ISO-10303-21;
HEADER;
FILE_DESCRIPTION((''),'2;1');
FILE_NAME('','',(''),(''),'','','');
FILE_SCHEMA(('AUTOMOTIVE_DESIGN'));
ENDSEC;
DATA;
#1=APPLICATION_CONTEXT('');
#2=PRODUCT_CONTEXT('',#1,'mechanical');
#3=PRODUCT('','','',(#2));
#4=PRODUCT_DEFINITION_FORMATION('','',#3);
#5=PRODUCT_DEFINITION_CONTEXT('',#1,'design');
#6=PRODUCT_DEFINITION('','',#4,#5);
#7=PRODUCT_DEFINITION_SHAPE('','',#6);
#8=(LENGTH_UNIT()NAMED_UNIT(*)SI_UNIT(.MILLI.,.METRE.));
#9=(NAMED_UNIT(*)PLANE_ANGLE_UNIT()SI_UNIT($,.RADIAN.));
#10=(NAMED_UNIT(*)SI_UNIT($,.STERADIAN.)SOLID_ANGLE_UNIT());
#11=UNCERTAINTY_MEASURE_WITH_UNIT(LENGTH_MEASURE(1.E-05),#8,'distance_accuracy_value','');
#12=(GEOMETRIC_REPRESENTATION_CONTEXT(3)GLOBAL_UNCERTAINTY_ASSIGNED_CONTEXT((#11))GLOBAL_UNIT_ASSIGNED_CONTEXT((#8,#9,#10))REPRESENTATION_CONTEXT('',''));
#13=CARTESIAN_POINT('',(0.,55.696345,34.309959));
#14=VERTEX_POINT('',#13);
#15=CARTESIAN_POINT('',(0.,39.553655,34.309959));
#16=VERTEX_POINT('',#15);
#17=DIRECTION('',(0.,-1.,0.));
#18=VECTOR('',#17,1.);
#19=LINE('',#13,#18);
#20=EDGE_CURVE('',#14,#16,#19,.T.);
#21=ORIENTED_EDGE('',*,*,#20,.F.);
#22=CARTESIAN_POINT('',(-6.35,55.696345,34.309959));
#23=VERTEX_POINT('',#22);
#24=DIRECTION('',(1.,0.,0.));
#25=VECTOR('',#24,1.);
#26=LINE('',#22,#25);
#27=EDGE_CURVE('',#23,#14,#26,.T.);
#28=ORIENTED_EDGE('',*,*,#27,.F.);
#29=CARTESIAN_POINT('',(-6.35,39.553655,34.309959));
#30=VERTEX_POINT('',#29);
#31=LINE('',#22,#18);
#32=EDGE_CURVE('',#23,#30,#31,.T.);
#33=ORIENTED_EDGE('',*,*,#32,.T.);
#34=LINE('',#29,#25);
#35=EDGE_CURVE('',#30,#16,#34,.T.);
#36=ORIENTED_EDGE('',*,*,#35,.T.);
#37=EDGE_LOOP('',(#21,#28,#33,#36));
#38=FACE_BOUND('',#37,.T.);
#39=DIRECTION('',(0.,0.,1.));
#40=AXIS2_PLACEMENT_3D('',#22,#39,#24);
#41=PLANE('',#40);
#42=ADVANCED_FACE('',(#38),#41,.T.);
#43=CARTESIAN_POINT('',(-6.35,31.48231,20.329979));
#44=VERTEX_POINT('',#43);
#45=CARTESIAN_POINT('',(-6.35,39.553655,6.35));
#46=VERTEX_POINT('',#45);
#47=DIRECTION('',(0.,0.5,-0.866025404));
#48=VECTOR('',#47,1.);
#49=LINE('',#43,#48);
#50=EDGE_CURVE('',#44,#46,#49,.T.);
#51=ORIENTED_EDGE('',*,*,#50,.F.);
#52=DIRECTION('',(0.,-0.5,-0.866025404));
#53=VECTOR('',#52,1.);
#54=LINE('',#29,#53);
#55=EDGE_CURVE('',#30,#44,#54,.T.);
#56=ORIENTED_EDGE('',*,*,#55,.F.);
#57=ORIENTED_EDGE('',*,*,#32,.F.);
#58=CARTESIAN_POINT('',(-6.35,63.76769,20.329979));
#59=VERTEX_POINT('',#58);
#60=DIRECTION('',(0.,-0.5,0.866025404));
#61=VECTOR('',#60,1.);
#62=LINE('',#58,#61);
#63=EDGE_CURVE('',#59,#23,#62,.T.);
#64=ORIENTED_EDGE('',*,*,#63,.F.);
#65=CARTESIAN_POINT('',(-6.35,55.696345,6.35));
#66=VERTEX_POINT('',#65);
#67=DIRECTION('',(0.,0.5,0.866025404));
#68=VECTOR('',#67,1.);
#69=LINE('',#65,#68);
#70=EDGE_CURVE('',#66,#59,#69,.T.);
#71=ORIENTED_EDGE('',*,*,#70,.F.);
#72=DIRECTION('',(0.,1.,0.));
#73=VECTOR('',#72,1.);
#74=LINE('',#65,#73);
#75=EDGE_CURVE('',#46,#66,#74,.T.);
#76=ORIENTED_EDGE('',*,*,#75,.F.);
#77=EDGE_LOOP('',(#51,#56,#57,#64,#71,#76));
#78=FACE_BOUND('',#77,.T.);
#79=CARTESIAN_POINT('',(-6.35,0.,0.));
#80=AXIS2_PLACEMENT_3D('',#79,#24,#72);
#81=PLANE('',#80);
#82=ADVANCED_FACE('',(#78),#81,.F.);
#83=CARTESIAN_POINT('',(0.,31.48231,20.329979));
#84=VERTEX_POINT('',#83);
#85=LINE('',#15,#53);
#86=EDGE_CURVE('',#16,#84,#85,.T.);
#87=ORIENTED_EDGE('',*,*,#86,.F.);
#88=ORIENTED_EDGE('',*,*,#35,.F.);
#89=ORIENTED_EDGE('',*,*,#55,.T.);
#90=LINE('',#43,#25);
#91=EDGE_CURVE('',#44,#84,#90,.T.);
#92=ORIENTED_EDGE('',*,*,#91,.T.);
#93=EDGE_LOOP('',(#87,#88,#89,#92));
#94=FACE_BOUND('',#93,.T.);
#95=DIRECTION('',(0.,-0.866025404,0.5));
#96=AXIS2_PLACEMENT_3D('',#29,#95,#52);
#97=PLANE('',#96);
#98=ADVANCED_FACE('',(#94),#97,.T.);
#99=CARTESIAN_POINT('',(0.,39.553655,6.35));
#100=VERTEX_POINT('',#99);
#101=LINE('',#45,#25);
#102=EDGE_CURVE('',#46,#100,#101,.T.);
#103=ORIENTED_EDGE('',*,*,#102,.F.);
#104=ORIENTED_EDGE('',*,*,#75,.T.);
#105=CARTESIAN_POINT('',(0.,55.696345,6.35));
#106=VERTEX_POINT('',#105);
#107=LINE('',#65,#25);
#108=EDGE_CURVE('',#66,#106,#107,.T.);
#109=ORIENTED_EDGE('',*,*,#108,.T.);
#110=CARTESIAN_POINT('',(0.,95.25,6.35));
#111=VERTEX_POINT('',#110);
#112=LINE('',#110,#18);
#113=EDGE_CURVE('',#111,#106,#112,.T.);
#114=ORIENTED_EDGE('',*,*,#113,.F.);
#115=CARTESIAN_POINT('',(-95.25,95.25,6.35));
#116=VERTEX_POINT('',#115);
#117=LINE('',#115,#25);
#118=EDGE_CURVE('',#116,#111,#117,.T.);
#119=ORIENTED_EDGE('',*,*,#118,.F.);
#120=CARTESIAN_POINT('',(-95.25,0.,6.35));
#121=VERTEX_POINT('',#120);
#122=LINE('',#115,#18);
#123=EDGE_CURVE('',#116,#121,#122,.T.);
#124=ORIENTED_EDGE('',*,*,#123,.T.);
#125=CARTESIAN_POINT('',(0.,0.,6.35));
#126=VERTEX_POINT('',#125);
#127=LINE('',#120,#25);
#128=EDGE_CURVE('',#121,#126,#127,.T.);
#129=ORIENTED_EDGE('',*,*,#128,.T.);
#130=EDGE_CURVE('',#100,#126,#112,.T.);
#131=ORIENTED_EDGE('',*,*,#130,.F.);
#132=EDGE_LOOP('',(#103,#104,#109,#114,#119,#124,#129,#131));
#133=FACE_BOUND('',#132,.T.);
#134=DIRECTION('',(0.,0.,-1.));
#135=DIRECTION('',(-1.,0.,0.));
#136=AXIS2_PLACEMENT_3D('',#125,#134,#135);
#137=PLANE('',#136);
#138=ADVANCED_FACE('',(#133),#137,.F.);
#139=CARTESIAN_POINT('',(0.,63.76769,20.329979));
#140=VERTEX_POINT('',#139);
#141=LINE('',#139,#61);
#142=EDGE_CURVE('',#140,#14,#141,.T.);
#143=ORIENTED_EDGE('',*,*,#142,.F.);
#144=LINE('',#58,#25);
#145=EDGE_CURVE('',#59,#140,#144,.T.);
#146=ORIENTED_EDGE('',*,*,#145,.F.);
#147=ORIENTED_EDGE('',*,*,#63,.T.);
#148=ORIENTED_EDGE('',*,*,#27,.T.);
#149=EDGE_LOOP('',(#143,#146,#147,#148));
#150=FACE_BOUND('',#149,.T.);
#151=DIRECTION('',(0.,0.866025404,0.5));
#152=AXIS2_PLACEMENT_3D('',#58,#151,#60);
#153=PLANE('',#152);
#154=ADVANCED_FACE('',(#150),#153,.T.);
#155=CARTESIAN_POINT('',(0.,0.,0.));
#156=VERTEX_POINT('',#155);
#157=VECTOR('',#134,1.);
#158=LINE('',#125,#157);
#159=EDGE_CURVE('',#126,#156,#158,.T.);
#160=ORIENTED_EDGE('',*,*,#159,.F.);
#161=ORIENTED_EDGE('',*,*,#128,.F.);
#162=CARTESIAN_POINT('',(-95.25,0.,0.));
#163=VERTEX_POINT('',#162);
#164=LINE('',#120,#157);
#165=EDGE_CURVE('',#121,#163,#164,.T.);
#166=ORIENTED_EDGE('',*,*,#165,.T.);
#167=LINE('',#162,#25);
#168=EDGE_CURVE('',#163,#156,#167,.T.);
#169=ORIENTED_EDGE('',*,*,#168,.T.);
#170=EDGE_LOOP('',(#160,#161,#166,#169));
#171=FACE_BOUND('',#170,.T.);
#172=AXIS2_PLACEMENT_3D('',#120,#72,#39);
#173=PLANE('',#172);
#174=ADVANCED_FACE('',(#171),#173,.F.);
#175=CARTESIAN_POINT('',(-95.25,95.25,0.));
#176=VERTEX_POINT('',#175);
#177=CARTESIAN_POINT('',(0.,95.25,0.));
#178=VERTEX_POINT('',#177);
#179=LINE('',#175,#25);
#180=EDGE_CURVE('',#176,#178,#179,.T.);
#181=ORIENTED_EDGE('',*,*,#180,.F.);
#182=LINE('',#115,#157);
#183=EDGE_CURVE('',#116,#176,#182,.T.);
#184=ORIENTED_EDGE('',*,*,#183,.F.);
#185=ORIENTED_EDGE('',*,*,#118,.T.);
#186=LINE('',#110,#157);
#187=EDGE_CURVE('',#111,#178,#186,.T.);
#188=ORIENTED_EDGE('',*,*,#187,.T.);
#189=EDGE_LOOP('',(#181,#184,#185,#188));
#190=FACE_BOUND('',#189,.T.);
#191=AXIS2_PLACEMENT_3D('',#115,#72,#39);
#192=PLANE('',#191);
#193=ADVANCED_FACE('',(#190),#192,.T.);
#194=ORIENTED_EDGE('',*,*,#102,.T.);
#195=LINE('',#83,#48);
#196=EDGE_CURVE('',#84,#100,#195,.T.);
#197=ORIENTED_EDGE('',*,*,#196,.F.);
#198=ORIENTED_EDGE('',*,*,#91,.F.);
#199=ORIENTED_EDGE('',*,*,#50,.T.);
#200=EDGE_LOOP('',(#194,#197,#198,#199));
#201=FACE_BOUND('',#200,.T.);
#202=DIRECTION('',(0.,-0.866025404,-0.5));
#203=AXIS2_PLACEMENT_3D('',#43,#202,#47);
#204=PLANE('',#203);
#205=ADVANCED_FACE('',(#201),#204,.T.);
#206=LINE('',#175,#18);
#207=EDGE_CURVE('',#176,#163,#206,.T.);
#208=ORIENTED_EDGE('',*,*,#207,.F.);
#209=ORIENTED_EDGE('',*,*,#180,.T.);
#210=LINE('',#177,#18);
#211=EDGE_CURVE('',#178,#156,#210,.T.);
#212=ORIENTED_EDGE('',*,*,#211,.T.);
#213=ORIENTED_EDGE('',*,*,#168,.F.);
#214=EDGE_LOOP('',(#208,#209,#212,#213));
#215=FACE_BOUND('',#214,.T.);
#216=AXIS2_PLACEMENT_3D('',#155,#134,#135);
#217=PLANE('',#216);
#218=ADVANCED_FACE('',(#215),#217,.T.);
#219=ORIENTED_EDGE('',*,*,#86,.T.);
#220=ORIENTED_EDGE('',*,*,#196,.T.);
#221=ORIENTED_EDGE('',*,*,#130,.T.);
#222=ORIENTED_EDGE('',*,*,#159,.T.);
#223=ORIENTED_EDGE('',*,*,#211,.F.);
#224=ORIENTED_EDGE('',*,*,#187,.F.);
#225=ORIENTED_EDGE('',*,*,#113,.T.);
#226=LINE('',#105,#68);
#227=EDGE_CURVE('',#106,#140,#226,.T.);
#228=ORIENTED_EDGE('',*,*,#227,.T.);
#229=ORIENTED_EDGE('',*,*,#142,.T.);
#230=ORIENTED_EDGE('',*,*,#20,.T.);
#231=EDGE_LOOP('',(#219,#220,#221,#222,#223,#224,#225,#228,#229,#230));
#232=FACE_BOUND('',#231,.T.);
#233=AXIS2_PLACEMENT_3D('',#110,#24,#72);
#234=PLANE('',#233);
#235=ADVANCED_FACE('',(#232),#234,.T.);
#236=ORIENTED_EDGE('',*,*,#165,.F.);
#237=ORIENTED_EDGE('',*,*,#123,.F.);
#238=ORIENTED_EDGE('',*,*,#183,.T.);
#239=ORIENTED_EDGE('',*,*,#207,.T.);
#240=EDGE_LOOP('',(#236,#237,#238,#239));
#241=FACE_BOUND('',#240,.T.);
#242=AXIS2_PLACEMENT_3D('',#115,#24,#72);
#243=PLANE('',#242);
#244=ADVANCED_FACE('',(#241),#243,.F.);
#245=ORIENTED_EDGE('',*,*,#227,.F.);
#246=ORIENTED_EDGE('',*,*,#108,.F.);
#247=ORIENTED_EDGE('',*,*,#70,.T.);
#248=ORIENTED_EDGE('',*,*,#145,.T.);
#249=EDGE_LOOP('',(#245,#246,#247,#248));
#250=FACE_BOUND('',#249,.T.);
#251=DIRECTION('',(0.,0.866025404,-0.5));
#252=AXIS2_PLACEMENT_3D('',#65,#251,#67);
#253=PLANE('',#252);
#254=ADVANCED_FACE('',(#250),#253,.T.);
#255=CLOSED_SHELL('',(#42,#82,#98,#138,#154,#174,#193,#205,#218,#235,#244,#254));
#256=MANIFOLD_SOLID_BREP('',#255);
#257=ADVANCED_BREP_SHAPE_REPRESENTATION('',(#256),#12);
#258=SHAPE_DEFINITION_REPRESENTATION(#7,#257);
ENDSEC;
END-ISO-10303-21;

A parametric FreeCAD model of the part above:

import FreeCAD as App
import Part
import Sketcher
from FreeCAD import Vector
Q = App.Units.Quantity

doc = App.newDocument("Part")
params = doc.addObject("Spreadsheet::Sheet", "Params")
for row, (alias, value) in enumerate([
    ("sketch1_width", "3.75 in"),
    ("pad1_length", "0.25 in"),
    ("pad2_length", "0.25 in"),
], start=1):
    params.set(f"A{row}", alias)
    params.set(f"B{row}", "=" + value)
    params.setAlias(f"B{row}", alias)

body = doc.addObject("PartDesign::Body", "Body")

sketch1 = body.newObject("Sketcher::SketchObject", "Sketch")
sketch1.AttachmentSupport = (doc.getObject("XY_Plane"), [""])
sketch1.MapMode = "FlatFace"
sketch1.addGeometry([
    Part.LineSegment(Vector(-95, 95, 0), Vector(-95, 0, 0)),
    Part.LineSegment(Vector(-95, 0, 0), Vector(0, 0, 0)),
    Part.LineSegment(Vector(0, 0, 0), Vector(0, 95, 0)),
    Part.LineSegment(Vector(0, 95, 0), Vector(-95, 95, 0)),
], False)
sketch1.addConstraint([
    Sketcher.Constraint("Coincident", 0, 2, 1, 1),
    Sketcher.Constraint("Coincident", 1, 2, 2, 1),
    Sketcher.Constraint("Coincident", 2, 2, 3, 1),
    Sketcher.Constraint("Coincident", 3, 2, 0, 1),
    Sketcher.Constraint("Vertical", 0),
    Sketcher.Constraint("Horizontal", 1),
    Sketcher.Constraint("Vertical", 2),
    Sketcher.Constraint("Horizontal", 3),
    Sketcher.Constraint("Coincident", 1, 2, -1, 1),
    Sketcher.Constraint("Equal", 3, 0),
    Sketcher.Constraint("DistanceX", 1, 1, 1, 2, Q("3.75 in")),
])
sketch1.setExpression("Constraints[10]", "Params.sketch1_width")
pad1 = body.newObject("PartDesign::Pad", "Pad")
pad1.Profile = sketch1
pad1.setExpression("Length", "Params.pad1_length")

sketch2 = body.newObject("Sketcher::SketchObject", "Sketch001")
sketch2.AttachmentSupport = (doc.getObject("YZ_Plane"), [""])
sketch2.MapMode = "FlatFace"
sketch2.addGeometry([
    Part.LineSegment(Vector(56, 6, 0), Vector(64, 20, 0)),
    Part.LineSegment(Vector(64, 20, 0), Vector(56, 34, 0)),
    Part.LineSegment(Vector(56, 34, 0), Vector(40, 34, 0)),
    Part.LineSegment(Vector(40, 34, 0), Vector(31, 20, 0)),
    Part.LineSegment(Vector(31, 20, 0), Vector(40, 6, 0)),
    Part.LineSegment(Vector(40, 6, 0), Vector(56, 6, 0)),
], False)
sketch2.addConstraint([
    Sketcher.Constraint("Coincident", 0, 2, 1, 1),
    Sketcher.Constraint("Coincident", 1, 2, 2, 1),
    Sketcher.Constraint("Coincident", 2, 2, 3, 1),
    Sketcher.Constraint("Coincident", 3, 2, 4, 1),
    Sketcher.Constraint("Coincident", 4, 2, 5, 1),
    Sketcher.Constraint("Coincident", 5, 2, 0, 1),
    Sketcher.Constraint("Horizontal", 2),
    Sketcher.Constraint("Horizontal", 5),
    Sketcher.Constraint("Parallel", 0, 3),
    Sketcher.Constraint("Parallel", 1, 4),
    Sketcher.Constraint("Horizontal", 0, 2, 3, 2),
    Sketcher.Constraint("Vertical", 2, 2, 4, 2),
    Sketcher.Constraint("Vertical", 1, 2, 5, 2),
    Sketcher.Constraint("Angle", 0, Q("60 deg")),
    Sketcher.Constraint("DistanceY", -1, 1, 4, 2, Q("0.25 in")),
    Sketcher.Constraint("DistanceX", 2, 2, 2, 1, Q("16.14269 mm")),
    Sketcher.Constraint("Distance", 0, Q("16.14269 mm")),
    Sketcher.Constraint("DistanceX", -1, 1, 0, 2, Q("63.76769 mm")),
])
pad2 = body.newObject("PartDesign::Pad", "Pad001")
pad2.Profile = sketch2
pad2.setExpression("Length", "Params.pad2_length")
pad2.Reversed = True

doc.recompute()
